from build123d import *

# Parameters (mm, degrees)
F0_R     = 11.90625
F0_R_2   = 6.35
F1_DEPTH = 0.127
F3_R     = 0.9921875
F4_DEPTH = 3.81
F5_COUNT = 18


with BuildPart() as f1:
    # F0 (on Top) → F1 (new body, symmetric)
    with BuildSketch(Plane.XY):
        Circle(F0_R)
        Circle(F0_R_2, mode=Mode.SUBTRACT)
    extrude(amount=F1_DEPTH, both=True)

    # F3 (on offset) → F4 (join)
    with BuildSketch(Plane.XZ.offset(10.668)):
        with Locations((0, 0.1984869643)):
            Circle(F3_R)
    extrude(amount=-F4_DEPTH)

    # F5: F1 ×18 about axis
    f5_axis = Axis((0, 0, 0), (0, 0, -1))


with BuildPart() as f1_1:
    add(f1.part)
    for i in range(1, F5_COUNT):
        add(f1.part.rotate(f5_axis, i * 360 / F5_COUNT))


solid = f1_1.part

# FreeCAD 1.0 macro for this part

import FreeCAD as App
import Part
import Sketcher

V = App.Vector
Q = App.Units.Quantity

doc = App.newDocument("Part")
body = doc.addObject("PartDesign::Body", "Body")

sketch1 = body.newObject("Sketcher::SketchObject", "Sketch")
sketch1.AttachmentSupport = (doc.getObject("XY_Plane"), [""])
sketch1.MapMode = "FlatFace"
sketch1.addGeometry(Part.Circle(V(0, 0, 0), V(0, 0, 1), 12), False)
sketch1.addGeometry(Part.Circle(V(0, 0, 0), V(0, 0, 1), 6), False)
sketch1.addConstraint(Sketcher.Constraint("Coincident", 0, 3, -1, 1))
sketch1.addConstraint(Sketcher.Constraint("Coincident", 1, 3, -1, 1))
sketch1.addConstraint(Sketcher.Constraint("Diameter", 1, Q("0.5 in")))
sketch1.addConstraint(Sketcher.Constraint("Diameter", 0, Q("0.9375 in")))
pad1 = body.newObject("PartDesign::Pad", "Pad")
pad1.Profile = sketch1
pad1.Length = Q("0.01 in")
pad1.Midplane = True

sketch2 = body.newObject("Sketcher::SketchObject", "Sketch001")
sketch2.AttachmentSupport = (doc.getObject("XZ_Plane"), [""])
sketch2.MapMode = "FlatFace"
sketch2.AttachmentOffset = App.Placement(V(0, 0, 0.42 * 25.4), App.Rotation())
sketch2.addGeometry(Part.Circle(V(0, 0.2, 0), V(0, 0, 1), 1), False)
sketch2.addConstraint(Sketcher.Constraint("PointOnObject", 0, 3, -2))
sketch2.addConstraint(Sketcher.Constraint("Diameter", 0, Q("0.078125 in")))
sketch2.addConstraint(Sketcher.Constraint("DistanceY", -1, 1, 0, 3, 0.198487))
pad2 = body.newObject("PartDesign::Pad", "Pad001")
pad2.Profile = sketch2
pad2.Length = Q("0.15 in")
pad2.Reversed = True
body2 = doc.addObject("PartDesign::Body", "Body001")
doc.recompute()

body2.BaseFeature = body
doc.recompute()

body3 = doc.addObject("PartDesign::Body", "Body002")
body3.BaseFeature = body
body3.Placement = App.Placement(V(0, 0, 0), App.Rotation(V(0, 0, -1), 20))
boolean = body2.newObject("PartDesign::Boolean", "Boolean")
boolean.Type = "Fuse"
boolean.addObjects([body3])
doc.recompute()

body4 = doc.addObject("PartDesign::Body", "Body003")
body4.BaseFeature = body
body4.Placement = App.Placement(V(0, 0, 0), App.Rotation(V(0, 0, -1), 40))
boolean2 = body2.newObject("PartDesign::Boolean", "Boolean001")
boolean2.Type = "Fuse"
boolean2.addObjects([body4])
doc.recompute()

body5 = doc.addObject("PartDesign::Body", "Body004")
body5.BaseFeature = body
body5.Placement = App.Placement(V(0, 0, 0), App.Rotation(V(0, 0, -1), 60))
boolean3 = body2.newObject("PartDesign::Boolean", "Boolean002")
boolean3.Type = "Fuse"
boolean3.addObjects([body5])
doc.recompute()

body6 = doc.addObject("PartDesign::Body", "Body005")
body6.BaseFeature = body
body6.Placement = App.Placement(V(0, 0, 0), App.Rotation(V(0, 0, -1), 80))
boolean4 = body2.newObject("PartDesign::Boolean", "Boolean003")
boolean4.Type = "Fuse"
boolean4.addObjects([body6])
doc.recompute()

body7 = doc.addObject("PartDesign::Body", "Body006")
body7.BaseFeature = body
body7.Placement = App.Placement(V(0, 0, 0), App.Rotation(V(0, 0, -1), 100))
boolean5 = body2.newObject("PartDesign::Boolean", "Boolean004")
boolean5.Type = "Fuse"
boolean5.addObjects([body7])
doc.recompute()

body8 = doc.addObject("PartDesign::Body", "Body007")
body8.BaseFeature = body
body8.Placement = App.Placement(V(0, 0, 0), App.Rotation(V(0, 0, -1), 120))
boolean6 = body2.newObject("PartDesign::Boolean", "Boolean005")
boolean6.Type = "Fuse"
boolean6.addObjects([body8])
doc.recompute()

body9 = doc.addObject("PartDesign::Body", "Body008")
body9.BaseFeature = body
body9.Placement = App.Placement(V(0, 0, 0), App.Rotation(V(0, 0, -1), 140))
boolean7 = body2.newObject("PartDesign::Boolean", "Boolean006")
boolean7.Type = "Fuse"
boolean7.addObjects([body9])
doc.recompute()

body10 = doc.addObject("PartDesign::Body", "Body009")
body10.BaseFeature = body
body10.Placement = App.Placement(V(0, 0, 0), App.Rotation(V(0, 0, -1), 160))
boolean8 = body2.newObject("PartDesign::Boolean", "Boolean007")
boolean8.Type = "Fuse"
boolean8.addObjects([body10])
doc.recompute()

body11 = doc.addObject("PartDesign::Body", "Body010")
body11.BaseFeature = body
body11.Placement = App.Placement(V(0, 0, 0), App.Rotation(V(0, 0, -1), 180))
boolean9 = body2.newObject("PartDesign::Boolean", "Boolean008")
boolean9.Type = "Fuse"
boolean9.addObjects([body11])
doc.recompute()

body12 = doc.addObject("PartDesign::Body", "Body011")
body12.BaseFeature = body
body12.Placement = App.Placement(V(0, 0, 0), App.Rotation(V(0, 0, -1), 200))
boolean10 = body2.newObject("PartDesign::Boolean", "Boolean009")
boolean10.Type = "Fuse"
boolean10.addObjects([body12])
doc.recompute()

body13 = doc.addObject("PartDesign::Body", "Body012")
body13.BaseFeature = body
body13.Placement = App.Placement(V(0, 0, 0), App.Rotation(V(0, 0, -1), 220))
boolean11 = body2.newObject("PartDesign::Boolean", "Boolean010")
boolean11.Type = "Fuse"
boolean11.addObjects([body13])
doc.recompute()

body14 = doc.addObject("PartDesign::Body", "Body013")
body14.BaseFeature = body
body14.Placement = App.Placement(V(0, 0, 0), App.Rotation(V(0, 0, -1), 240))
boolean12 = body2.newObject("PartDesign::Boolean", "Boolean011")
boolean12.Type = "Fuse"
boolean12.addObjects([body14])
doc.recompute()

body15 = doc.addObject("PartDesign::Body", "Body014")
body15.BaseFeature = body
body15.Placement = App.Placement(V(0, 0, 0), App.Rotation(V(0, 0, -1), 260))
boolean13 = body2.newObject("PartDesign::Boolean", "Boolean012")
boolean13.Type = "Fuse"
boolean13.addObjects([body15])
doc.recompute()

body16 = doc.addObject("PartDesign::Body", "Body015")
body16.BaseFeature = body
body16.Placement = App.Placement(V(0, 0, 0), App.Rotation(V(0, 0, -1), 280))
boolean14 = body2.newObject("PartDesign::Boolean", "Boolean013")
boolean14.Type = "Fuse"
boolean14.addObjects([body16])
doc.recompute()

body17 = doc.addObject("PartDesign::Body", "Body016")
body17.BaseFeature = body
body17.Placement = App.Placement(V(0, 0, 0), App.Rotation(V(0, 0, -1), 300))
boolean15 = body2.newObject("PartDesign::Boolean", "Boolean014")
boolean15.Type = "Fuse"
boolean15.addObjects([body17])
doc.recompute()

body18 = doc.addObject("PartDesign::Body", "Body017")
body18.BaseFeature = body
body18.Placement = App.Placement(V(0, 0, 0), App.Rotation(V(0, 0, -1), 320))
boolean16 = body2.newObject("PartDesign::Boolean", "Boolean015")
boolean16.Type = "Fuse"
boolean16.addObjects([body18])
doc.recompute()

body.Placement = App.Placement(V(0, 0, 0), App.Rotation(V(0, 0, -1), 340))
boolean17 = body2.newObject("PartDesign::Boolean", "Boolean016")
boolean17.Type = "Fuse"
boolean17.addObjects([body])

doc.recompute()
